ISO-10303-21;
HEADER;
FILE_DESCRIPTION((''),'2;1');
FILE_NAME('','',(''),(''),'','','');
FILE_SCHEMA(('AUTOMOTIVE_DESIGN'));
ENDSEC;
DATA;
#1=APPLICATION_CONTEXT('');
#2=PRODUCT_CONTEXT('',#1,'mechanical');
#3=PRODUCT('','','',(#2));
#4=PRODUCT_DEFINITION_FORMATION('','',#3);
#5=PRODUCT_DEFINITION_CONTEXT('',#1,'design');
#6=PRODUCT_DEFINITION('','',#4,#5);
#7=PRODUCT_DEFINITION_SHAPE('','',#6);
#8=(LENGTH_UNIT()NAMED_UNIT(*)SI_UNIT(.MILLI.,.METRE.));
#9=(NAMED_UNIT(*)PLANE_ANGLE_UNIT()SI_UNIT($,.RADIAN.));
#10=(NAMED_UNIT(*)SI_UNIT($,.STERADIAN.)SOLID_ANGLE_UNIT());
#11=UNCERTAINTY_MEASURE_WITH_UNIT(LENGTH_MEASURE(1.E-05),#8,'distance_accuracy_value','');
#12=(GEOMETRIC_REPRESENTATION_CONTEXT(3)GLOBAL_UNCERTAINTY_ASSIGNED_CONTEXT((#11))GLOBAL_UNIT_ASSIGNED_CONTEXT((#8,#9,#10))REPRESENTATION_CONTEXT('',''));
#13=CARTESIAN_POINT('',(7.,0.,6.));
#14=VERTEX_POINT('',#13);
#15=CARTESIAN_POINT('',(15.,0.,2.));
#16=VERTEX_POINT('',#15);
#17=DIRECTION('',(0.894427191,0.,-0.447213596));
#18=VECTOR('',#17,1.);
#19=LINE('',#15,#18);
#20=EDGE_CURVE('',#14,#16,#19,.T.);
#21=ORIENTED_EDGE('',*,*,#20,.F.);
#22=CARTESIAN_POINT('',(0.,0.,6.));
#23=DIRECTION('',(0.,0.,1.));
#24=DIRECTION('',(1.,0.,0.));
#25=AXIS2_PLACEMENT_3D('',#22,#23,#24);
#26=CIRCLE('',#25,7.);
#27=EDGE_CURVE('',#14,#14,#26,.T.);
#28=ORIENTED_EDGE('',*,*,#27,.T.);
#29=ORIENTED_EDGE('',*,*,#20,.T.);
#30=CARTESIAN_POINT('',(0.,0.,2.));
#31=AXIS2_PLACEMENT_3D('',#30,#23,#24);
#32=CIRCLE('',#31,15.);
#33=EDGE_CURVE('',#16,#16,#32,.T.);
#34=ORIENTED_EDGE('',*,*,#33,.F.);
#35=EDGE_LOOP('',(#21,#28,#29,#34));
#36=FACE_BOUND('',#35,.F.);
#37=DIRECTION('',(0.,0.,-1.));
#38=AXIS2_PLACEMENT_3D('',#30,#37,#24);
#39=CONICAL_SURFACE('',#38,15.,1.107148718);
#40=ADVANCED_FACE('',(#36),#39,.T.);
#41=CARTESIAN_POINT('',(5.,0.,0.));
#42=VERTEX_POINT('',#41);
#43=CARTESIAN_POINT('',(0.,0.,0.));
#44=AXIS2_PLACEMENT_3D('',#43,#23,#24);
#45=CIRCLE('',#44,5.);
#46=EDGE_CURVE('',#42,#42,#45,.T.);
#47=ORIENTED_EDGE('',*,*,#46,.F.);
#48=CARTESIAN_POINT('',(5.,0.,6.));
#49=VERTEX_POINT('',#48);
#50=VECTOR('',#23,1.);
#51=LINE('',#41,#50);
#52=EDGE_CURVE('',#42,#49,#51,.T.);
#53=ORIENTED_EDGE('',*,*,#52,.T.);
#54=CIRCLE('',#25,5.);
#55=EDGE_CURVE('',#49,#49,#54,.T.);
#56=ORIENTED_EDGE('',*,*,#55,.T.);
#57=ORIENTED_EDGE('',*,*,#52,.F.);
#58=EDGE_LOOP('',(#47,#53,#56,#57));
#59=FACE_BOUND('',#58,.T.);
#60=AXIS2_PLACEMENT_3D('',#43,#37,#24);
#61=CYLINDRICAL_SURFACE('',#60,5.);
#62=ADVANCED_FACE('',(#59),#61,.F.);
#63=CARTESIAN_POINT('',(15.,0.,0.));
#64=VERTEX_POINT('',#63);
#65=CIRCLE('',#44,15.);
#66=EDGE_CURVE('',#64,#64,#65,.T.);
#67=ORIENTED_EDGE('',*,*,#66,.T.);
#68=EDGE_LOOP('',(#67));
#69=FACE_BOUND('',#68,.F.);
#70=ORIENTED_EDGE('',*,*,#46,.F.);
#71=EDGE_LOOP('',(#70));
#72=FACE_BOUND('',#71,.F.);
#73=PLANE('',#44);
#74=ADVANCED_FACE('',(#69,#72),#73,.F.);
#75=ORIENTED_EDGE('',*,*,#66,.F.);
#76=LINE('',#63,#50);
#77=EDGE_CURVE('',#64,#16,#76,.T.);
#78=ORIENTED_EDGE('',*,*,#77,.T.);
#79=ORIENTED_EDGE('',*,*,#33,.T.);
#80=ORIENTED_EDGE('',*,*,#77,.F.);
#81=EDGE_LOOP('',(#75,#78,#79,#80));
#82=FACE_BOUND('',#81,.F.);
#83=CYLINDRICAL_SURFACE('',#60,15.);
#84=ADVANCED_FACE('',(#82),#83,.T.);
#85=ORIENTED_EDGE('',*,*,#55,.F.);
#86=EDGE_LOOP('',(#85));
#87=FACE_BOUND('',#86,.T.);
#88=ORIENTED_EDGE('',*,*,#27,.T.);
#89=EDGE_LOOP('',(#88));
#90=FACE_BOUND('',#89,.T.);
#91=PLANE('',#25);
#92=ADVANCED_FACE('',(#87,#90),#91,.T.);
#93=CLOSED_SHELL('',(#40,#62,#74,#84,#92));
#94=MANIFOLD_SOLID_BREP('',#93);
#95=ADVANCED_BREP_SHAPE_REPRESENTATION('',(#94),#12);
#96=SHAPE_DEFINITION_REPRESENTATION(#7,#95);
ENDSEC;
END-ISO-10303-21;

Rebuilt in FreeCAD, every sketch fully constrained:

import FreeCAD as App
import Part
import Sketcher
from FreeCAD import Vector
Q = App.Units.Quantity


def edges_at(feature, points):
    """Names of the edges that pass closest to the given points."""
    edges = feature.Shape.Edges
    near = lambda p: min(range(len(edges)), key=lambda i: edges[i].distToShape(Part.Vertex(*p))[0])
    return sorted({f"Edge{near(p) + 1}" for p in points})

doc = App.newDocument("Part")
body = doc.addObject("PartDesign::Body", "Body")

# Sketch on XY plane
sketch1 = body.newObject("Sketcher::SketchObject", "Sketch")
sketch1.AttachmentSupport = (doc.getObject("XY_Plane"), [""])
sketch1.MapMode = "FlatFace"
sketch1.addGeometry([
    Part.Circle(Vector(0, 0, 0), Vector(0, 0, 1), 15),
    Part.Circle(Vector(0, 0, 0), Vector(0, 0, 1), 5),
], False)
sketch1.addConstraint([
    Sketcher.Constraint("Coincident", 0, 3, -1, 1),
    Sketcher.Constraint("Coincident", 1, 3, -1, 1),
    Sketcher.Constraint("Diameter", 0, Q("30 mm")),
    Sketcher.Constraint("Diameter", 1, Q("10 mm")),
])
pad1 = body.newObject("PartDesign::Pad", "Pad")
pad1.Profile = sketch1
pad1.Length = 6
doc.recompute()

chamfer = body.newObject("PartDesign::Chamfer", "Chamfer")
chamfer.Base = (pad1, edges_at(pad1, [(-15, 0, 6)]))
chamfer.ChamferType = "Two distances"
chamfer.Size = 8
chamfer.Size2 = 4
chamfer.FlipDirection = True

doc.recompute()
